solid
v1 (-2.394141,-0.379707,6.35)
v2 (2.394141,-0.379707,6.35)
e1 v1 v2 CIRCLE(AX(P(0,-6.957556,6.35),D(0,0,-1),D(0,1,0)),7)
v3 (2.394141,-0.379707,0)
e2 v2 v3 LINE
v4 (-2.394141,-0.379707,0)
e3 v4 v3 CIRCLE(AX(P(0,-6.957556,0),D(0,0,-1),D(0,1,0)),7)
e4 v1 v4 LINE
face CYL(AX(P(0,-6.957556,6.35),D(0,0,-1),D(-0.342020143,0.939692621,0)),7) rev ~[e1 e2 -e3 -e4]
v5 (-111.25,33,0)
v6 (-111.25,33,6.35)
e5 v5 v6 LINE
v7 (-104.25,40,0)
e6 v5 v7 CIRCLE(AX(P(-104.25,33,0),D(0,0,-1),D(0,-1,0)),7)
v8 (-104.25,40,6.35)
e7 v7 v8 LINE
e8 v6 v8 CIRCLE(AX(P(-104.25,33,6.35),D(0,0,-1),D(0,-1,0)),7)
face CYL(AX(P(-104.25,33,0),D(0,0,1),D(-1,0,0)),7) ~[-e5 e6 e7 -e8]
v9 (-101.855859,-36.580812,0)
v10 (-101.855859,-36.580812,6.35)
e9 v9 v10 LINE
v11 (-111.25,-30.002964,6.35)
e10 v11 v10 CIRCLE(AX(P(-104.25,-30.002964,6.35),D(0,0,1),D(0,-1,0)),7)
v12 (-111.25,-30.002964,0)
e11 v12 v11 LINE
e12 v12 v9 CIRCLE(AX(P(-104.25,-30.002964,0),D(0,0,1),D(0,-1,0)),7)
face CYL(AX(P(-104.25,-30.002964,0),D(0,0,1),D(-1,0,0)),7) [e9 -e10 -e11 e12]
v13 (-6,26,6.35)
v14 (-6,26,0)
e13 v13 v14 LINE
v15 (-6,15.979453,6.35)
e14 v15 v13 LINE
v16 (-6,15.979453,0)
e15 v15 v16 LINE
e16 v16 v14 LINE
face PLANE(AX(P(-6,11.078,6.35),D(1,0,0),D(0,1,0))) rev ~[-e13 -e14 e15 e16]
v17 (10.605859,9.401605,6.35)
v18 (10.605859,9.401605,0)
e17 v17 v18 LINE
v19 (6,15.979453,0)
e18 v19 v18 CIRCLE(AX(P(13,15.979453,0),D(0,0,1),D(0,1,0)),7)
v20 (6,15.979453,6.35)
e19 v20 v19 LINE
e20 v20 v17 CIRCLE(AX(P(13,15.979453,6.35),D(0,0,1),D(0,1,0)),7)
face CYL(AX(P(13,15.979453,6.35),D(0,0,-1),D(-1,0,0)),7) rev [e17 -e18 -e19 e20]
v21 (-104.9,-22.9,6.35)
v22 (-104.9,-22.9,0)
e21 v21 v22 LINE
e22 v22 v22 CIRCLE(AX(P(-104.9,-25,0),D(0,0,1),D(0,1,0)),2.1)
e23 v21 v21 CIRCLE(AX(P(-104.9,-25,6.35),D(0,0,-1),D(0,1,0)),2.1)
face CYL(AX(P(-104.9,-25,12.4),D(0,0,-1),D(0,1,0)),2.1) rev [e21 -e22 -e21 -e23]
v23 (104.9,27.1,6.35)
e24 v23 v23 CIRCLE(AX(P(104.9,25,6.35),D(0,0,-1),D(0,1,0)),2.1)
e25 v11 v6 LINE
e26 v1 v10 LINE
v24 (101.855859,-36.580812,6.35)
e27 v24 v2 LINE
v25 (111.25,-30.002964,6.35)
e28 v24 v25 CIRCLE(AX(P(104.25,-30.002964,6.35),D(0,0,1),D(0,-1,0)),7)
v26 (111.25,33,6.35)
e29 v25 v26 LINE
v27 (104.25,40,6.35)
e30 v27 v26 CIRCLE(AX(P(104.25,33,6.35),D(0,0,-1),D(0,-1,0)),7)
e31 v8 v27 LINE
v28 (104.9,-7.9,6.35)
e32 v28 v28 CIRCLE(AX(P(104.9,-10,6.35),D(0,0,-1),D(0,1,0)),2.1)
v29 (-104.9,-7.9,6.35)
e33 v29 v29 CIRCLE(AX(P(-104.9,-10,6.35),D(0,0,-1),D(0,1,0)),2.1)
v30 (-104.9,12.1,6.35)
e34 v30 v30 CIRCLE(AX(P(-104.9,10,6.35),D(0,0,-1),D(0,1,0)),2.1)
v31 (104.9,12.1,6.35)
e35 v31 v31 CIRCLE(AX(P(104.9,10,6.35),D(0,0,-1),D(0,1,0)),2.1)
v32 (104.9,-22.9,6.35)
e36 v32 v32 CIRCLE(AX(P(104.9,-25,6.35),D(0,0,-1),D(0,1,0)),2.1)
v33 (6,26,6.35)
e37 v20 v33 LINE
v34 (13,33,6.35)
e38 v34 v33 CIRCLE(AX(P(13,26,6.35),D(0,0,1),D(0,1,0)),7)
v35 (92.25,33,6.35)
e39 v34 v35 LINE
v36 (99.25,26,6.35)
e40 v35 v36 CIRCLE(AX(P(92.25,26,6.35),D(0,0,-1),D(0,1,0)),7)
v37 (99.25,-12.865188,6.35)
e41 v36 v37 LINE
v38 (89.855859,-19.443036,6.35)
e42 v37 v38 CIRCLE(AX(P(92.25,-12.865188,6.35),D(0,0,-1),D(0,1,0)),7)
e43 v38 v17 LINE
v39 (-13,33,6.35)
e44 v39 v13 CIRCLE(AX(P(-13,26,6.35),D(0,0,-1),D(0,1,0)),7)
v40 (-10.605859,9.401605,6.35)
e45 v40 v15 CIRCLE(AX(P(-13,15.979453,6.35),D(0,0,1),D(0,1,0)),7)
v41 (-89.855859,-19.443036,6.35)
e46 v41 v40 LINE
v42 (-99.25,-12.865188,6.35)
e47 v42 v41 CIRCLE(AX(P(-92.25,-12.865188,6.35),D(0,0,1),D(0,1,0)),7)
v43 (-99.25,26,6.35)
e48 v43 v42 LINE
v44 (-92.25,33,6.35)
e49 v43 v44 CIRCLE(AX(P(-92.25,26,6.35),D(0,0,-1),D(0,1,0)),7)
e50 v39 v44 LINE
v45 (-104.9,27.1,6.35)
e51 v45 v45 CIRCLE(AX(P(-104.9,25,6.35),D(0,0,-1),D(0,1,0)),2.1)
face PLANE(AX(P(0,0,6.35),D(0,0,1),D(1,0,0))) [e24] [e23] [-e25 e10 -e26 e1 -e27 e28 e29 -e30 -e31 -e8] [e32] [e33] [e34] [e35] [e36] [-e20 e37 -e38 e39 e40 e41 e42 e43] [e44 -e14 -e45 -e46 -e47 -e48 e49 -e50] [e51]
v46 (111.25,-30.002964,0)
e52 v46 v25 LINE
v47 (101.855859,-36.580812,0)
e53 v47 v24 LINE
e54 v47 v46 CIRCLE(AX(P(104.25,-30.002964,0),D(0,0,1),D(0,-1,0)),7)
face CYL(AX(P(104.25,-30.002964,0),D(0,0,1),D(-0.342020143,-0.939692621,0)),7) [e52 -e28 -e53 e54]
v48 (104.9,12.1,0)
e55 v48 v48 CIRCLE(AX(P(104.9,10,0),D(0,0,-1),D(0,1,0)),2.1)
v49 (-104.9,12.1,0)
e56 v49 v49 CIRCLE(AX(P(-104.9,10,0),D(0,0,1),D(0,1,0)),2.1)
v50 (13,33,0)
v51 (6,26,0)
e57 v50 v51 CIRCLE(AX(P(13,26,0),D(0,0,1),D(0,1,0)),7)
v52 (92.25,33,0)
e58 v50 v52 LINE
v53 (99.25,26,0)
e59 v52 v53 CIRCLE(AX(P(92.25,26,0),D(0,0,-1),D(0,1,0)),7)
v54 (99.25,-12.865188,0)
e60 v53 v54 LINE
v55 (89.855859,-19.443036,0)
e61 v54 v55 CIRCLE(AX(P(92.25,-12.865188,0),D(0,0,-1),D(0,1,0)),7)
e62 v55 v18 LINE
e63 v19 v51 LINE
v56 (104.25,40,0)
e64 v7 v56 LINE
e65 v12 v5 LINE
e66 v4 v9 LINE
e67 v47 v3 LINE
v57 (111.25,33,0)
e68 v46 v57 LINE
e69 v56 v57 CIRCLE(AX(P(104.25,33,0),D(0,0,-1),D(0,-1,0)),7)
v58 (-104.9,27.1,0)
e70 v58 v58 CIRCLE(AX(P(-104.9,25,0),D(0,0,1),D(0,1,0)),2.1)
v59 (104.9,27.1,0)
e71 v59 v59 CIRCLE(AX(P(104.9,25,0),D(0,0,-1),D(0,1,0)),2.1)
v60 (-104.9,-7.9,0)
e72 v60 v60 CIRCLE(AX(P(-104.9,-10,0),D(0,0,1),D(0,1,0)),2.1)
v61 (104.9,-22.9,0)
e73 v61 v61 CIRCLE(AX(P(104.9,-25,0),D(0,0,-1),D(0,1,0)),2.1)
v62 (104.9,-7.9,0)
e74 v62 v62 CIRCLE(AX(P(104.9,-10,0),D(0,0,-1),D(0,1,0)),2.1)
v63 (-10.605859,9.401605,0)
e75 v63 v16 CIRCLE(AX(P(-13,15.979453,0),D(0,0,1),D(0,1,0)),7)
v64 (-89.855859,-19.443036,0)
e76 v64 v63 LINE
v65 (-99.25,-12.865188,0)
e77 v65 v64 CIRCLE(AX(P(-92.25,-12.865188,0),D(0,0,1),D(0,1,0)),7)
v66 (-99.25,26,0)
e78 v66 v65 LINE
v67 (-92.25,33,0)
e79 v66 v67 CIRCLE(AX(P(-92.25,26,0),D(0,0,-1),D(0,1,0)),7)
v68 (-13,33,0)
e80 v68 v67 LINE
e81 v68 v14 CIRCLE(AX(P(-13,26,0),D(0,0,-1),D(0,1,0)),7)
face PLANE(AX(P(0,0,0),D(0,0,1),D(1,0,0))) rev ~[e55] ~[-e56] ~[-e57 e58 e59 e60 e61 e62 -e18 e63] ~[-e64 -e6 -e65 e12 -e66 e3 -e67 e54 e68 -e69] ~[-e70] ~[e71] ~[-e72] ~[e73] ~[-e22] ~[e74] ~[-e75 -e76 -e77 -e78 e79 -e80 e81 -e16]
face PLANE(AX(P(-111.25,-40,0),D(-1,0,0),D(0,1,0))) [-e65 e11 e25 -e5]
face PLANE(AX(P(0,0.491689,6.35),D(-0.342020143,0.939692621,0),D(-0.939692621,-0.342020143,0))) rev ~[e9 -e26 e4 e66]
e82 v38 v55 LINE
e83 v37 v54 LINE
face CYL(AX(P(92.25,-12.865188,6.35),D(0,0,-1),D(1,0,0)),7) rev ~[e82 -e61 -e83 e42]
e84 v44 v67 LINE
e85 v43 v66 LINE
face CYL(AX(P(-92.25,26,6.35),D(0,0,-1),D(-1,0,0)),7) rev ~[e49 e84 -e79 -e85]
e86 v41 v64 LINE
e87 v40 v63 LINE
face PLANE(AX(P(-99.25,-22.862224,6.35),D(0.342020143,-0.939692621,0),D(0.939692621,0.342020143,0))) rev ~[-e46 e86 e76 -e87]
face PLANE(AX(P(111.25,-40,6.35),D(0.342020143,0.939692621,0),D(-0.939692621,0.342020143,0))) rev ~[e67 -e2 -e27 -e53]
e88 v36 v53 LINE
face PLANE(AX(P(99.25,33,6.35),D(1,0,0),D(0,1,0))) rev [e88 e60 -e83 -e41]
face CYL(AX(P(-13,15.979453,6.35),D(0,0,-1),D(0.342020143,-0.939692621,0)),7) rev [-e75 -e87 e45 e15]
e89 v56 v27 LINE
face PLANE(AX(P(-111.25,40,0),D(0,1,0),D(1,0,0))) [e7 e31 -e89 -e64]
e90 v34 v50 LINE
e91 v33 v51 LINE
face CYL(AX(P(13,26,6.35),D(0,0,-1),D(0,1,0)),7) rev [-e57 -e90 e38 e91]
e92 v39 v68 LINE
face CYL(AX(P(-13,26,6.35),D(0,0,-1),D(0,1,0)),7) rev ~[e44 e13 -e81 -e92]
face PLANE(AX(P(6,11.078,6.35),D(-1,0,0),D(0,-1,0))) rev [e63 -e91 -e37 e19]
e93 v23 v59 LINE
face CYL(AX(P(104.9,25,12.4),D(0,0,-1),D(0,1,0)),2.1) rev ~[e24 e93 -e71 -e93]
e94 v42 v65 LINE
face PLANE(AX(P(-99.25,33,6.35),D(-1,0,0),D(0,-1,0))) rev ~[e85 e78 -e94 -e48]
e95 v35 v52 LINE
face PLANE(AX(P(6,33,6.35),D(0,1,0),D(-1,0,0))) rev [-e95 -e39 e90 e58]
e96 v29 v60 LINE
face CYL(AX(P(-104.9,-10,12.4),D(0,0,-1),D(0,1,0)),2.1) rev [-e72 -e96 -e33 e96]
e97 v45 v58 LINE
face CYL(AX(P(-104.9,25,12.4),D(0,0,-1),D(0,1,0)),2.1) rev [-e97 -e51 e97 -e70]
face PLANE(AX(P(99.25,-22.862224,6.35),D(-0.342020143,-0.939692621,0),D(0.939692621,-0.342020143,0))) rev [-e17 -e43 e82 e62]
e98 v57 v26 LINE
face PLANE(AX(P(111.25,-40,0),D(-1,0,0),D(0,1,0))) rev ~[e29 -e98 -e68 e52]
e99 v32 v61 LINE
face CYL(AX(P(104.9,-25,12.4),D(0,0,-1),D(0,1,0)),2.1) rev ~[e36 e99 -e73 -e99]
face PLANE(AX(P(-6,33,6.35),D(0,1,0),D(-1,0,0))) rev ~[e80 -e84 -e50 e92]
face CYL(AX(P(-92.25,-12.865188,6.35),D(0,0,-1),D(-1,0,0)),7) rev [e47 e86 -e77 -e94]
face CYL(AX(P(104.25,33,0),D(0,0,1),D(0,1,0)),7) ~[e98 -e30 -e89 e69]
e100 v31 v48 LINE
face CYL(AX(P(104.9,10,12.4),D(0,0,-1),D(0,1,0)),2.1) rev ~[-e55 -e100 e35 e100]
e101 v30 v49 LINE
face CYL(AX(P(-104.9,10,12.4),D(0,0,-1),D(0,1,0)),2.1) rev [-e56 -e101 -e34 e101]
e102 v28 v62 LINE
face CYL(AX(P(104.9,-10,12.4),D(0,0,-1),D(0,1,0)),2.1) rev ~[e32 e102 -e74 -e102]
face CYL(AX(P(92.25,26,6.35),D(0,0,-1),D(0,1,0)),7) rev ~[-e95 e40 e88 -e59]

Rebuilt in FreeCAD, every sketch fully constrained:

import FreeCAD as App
import Part
import Sketcher
Q = App.Units.Quantity


def edges_at(feature, points):
    """Names of the edges that pass closest to the given points."""
    edges = feature.Shape.Edges
    near = lambda p: min(range(len(edges)), key=lambda i: edges[i].distToShape(Part.Vertex(*p))[0])
    return sorted({f"Edge{near(p) + 1}" for p in points})


def add_polygon(sketch, points):
    """Adds a closed chain of lines whose ends are joined by coincident constraints."""
    first, n = sketch.GeometryCount, len(points)
    for a, b in zip(points, points[1:] + points[:1]):
        sketch.addGeometry(Part.LineSegment(App.Vector(*a, 0), App.Vector(*b, 0)), False)
    for i in range(n):
        sketch.addConstraint(Sketcher.Constraint("Coincident", first + i, 2, first + (i + 1) % n, 1))

doc = App.newDocument("Part")
params = doc.addObject("Spreadsheet::Sheet", "Params")
for row, (alias, value) in enumerate([
    ("sketch1_height", "80 mm"),
    ("sketch1_width", "222.5 mm"),
    ("pad1_length", "6.35 mm"),
    ("sketch2_width", "222.5 mm"),
    ("sketch3_width", "93.25 mm"),
    ("sketch4_width", "2.1 mm"),
    ("sketch4_height", "12.4 mm"),
    ("groove_angle", "360 deg"),
    ("linearpattern_pitch", "15 mm"),
    ("linearpattern2_pitch", "50 mm"),
    ("linearpattern3_pitch", "35 mm"),
    ("sketch5_width", "2.1 mm"),
    ("sketch5_height", "12.4 mm"),
    ("groove2_angle", "360 deg"),
    ("sketch6_width", "2.1 mm"),
    ("sketch6_height", "12.4 mm"),
    ("groove3_angle", "360 deg"),
    ("sketch7_width", "2.1 mm"),
    ("sketch7_height", "12.4 mm"),
    ("groove4_angle", "360 deg"),
    ("fillet_radius", "7 mm"),
], start=1):
    params.set(f"A{row}", alias)
    params.set(f"B{row}", "=" + value)
    params.setAlias(f"B{row}", alias)

body = doc.addObject("PartDesign::Body", "Body")

# Sketch on XY plane
sketch1 = body.newObject("Sketcher::SketchObject", "Sketch")
sketch1.AttachmentSupport = (doc.getObject("XY_Plane"), [""])
sketch1.MapMode = "FlatFace"
add_polygon(sketch1, [(-111, 40), (-111, -40), (111, -40), (111, 40)])  # lines 0-3
sketch1.addConstraint([
    Sketcher.Constraint("Vertical", 0),
    Sketcher.Constraint("Horizontal", 1),
    Sketcher.Constraint("Vertical", 2),
    Sketcher.Constraint("Horizontal", 3),
    Sketcher.Constraint("Symmetric", 0, 2, 2, 2, -1, 1),
    Sketcher.Constraint("DistanceY", 0, 2, 0, 1, Q("80 mm")),
    Sketcher.Constraint("DistanceX", 1, 1, 1, 2, Q("222.5 mm")),
])
sketch1.setExpression("Constraints[9]", "Params.sketch1_height")
sketch1.setExpression("Constraints[10]", "Params.sketch1_width")
pad1 = body.newObject("PartDesign::Pad", "Pad")
pad1.Profile = sketch1
pad1.setExpression("Length", "Params.pad1_length")

# Sketch on XY plane
sketch2 = body.newObject("Sketcher::SketchObject", "Sketch001")
sketch2.AttachmentSupport = (doc.getObject("XY_Plane"), [""])
sketch2.MapMode = "FlatFace"
sketch2.AttachmentOffset = App.Placement(App.Vector(0, 0, 6.35), App.Rotation())
add_polygon(sketch2, [(111, -40), (0, 0), (-111, -40)])  # lines 0-2
sketch2.addConstraint([
    Sketcher.Constraint("Horizontal", 2),
    Sketcher.Constraint("PointOnObject", 0, 2, -2),
    Sketcher.Constraint("Equal", 0, 1),
    Sketcher.Constraint("Angle", 0, Q("160 deg")),
    Sketcher.Constraint("DistanceX", 2, 1, 2, 2, Q("222.5 mm")),
    Sketcher.Constraint("DistanceY", 1, 2, -1, 1, Q("40 mm")),
])
sketch2.setExpression("Constraints[7]", "Params.sketch2_width")
pocket1 = body.newObject("PartDesign::Pocket", "Pocket")
pocket1.Profile = sketch2
pocket1.Type = "ThroughAll"

# Sketch on XY plane
sketch3 = body.newObject("Sketcher::SketchObject", "Sketch002")
sketch3.AttachmentSupport = (doc.getObject("XY_Plane"), [""])
sketch3.MapMode = "FlatFace"
sketch3.AttachmentOffset = App.Placement(App.Vector(0, 0, 6.35), App.Rotation())
add_polygon(sketch3, [(-99, 33), (-99, -23), (-6, 11), (-6, 33)])  # lines 0-3
sketch3.addConstraint([
    Sketcher.Constraint("Vertical", 0),
    Sketcher.Constraint("Vertical", 2),
    Sketcher.Constraint("Horizontal", 3),
    Sketcher.Constraint("Angle", 1, Q("20 deg")),
    Sketcher.Constraint("DistanceX", 1, 2, -1, 1, Q("6 mm")),
    Sketcher.Constraint("DistanceY", -1, 1, 2, 2, Q("33 mm")),
    Sketcher.Constraint("DistanceX", 3, 2, 3, 1, Q("93.25 mm")),
    Sketcher.Constraint("DistanceY", 2, 1, 2, 2, Q("21.922 mm")),
])
sketch3.setExpression("Constraints[10]", "Params.sketch3_width")
pocket2 = body.newObject("PartDesign::Pocket", "Pocket001")
pocket2.Profile = sketch3
pocket2.Type = "ThroughAll"

# Sketch on YZ plane
sketch4 = body.newObject("Sketcher::SketchObject", "Sketch003")
sketch4.AttachmentSupport = (doc.getObject("YZ_Plane"), [""])
sketch4.MapMode = "FlatFace"
sketch4.AttachmentOffset = App.Placement(App.Vector(0, 0, -104.9), App.Rotation())
add_polygon(sketch4, [(-25, 13.7), (-25, 0), (-22.9, 0), (-22.9, 12.4)])  # lines 0-3
sketch4.addGeometry(Part.LineSegment(App.Vector(-25, 0, 0), App.Vector(-25, 13.7, 0)), True)  # axis
sketch4.addConstraint([
    Sketcher.Constraint("Vertical", 0),
    Sketcher.Constraint("Horizontal", 1),
    Sketcher.Constraint("Vertical", 2),
    Sketcher.Constraint("Vertical", 4),
    Sketcher.Constraint("Coincident", 4, 1, 0, 2),
    Sketcher.Constraint("PointOnObject", 0, 2, -1),
    Sketcher.Constraint("Equal", 0, 4),
    Sketcher.Constraint("Angle", 3, Q("149 deg")),
    Sketcher.Constraint("DistanceX", 1, 1, 1, 2, Q("2.1 mm")),
    Sketcher.Constraint("DistanceY", 2, 1, 2, 2, Q("12.4 mm")),
    Sketcher.Constraint("DistanceX", 0, 2, -1, 1, Q("25 mm")),
])
sketch4.setExpression("Constraints[12]", "Params.sketch4_width")
sketch4.setExpression("Constraints[13]", "Params.sketch4_height")
groove = body.newObject("PartDesign::Groove", "Groove")
groove.Profile = sketch4
groove.ReferenceAxis = (sketch4, ["Axis0"])
groove.setExpression("Angle", "Params.groove_angle")
doc.recompute()

linearpattern = body.newObject("PartDesign::LinearPattern", "LinearPattern")
linearpattern.Originals = [groove]
linearpattern.Direction = (doc.getObject("Y_Axis"), [""])
linearpattern.Mode = "offset"
linearpattern.setExpression("Offset", "Params.linearpattern_pitch")
linearpattern.Occurrences = 2
body.Tip = linearpattern
doc.recompute()

linearpattern2 = body.newObject("PartDesign::LinearPattern", "LinearPattern001")
linearpattern2.Originals = [groove]
linearpattern2.Direction = (doc.getObject("Y_Axis"), [""])
linearpattern2.Mode = "offset"
linearpattern2.setExpression("Offset", "Params.linearpattern2_pitch")
linearpattern2.Occurrences = 2
body.Tip = linearpattern2
doc.recompute()

linearpattern3 = body.newObject("PartDesign::LinearPattern", "LinearPattern002")
linearpattern3.Originals = [groove]
linearpattern3.Direction = (doc.getObject("Y_Axis"), [""])
linearpattern3.Mode = "offset"
linearpattern3.setExpression("Offset", "Params.linearpattern3_pitch")
linearpattern3.Occurrences = 2
body.Tip = linearpattern3
doc.recompute()

mirrored = body.newObject("PartDesign::Mirrored", "Mirrored")
mirrored.Originals = [pocket2, groove]
mirrored.MirrorPlane = (doc.getObject("YZ_Plane"), [""])
body.Tip = mirrored

# Sketch on YZ plane
sketch5 = body.newObject("Sketcher::SketchObject", "Sketch004")
sketch5.AttachmentSupport = (doc.getObject("YZ_Plane"), [""])
sketch5.MapMode = "FlatFace"
sketch5.AttachmentOffset = App.Placement(App.Vector(0, 0, 104.9), App.Rotation())
add_polygon(sketch5, [(-10, 0), (-10, 13.7), (-7.9, 12.4), (-7.9, 0)])  # lines 0-3
sketch5.addGeometry(Part.LineSegment(App.Vector(-10, 13.7, 0), App.Vector(-10, 0, 0)), True)  # axis
sketch5.addConstraint([
    Sketcher.Constraint("Vertical", 0),
    Sketcher.Constraint("Vertical", 2),
    Sketcher.Constraint("Horizontal", 3),
    Sketcher.Constraint("Vertical", 4),
    Sketcher.Constraint("Coincident", 4, 1, 0, 2),
    Sketcher.Constraint("PointOnObject", 2, 2, -1),
    Sketcher.Constraint("PointOnObject", 4, 2, -1),
    Sketcher.Constraint("Angle", 1, Q("-31 deg")),
    Sketcher.Constraint("DistanceX", 3, 2, 3, 1, Q("2.1 mm")),
    Sketcher.Constraint("DistanceY", 2, 2, 2, 1, Q("12.4 mm")),
    Sketcher.Constraint("DistanceX", 0, 2, -1, 1, Q("10 mm")),
])
sketch5.setExpression("Constraints[12]", "Params.sketch5_width")
sketch5.setExpression("Constraints[13]", "Params.sketch5_height")
groove2 = body.newObject("PartDesign::Groove", "Groove001")
groove2.Profile = sketch5
groove2.ReferenceAxis = (sketch5, ["Axis0"])
groove2.setExpression("Angle", "Params.groove2_angle")

# Sketch on YZ plane
sketch6 = body.newObject("Sketcher::SketchObject", "Sketch005")
sketch6.AttachmentSupport = (doc.getObject("YZ_Plane"), [""])
sketch6.MapMode = "FlatFace"
sketch6.AttachmentOffset = App.Placement(App.Vector(0, 0, 104.9), App.Rotation())
add_polygon(sketch6, [(25, 0), (25, 13.7), (27.1, 12.4), (27.1, 0)])  # lines 0-3
sketch6.addGeometry(Part.LineSegment(App.Vector(25, 13.7, 0), App.Vector(25, 0, 0)), True)  # axis
sketch6.addConstraint([
    Sketcher.Constraint("Vertical", 0),
    Sketcher.Constraint("Vertical", 2),
    Sketcher.Constraint("Horizontal", 3),
    Sketcher.Constraint("Vertical", 4),
    Sketcher.Constraint("Coincident", 4, 1, 0, 2),
    Sketcher.Constraint("PointOnObject", 2, 2, -1),
    Sketcher.Constraint("PointOnObject", 4, 2, -1),
    Sketcher.Constraint("Angle", 1, Q("-31 deg")),
    Sketcher.Constraint("DistanceX", 3, 2, 3, 1, Q("2.1 mm")),
    Sketcher.Constraint("DistanceY", 2, 2, 2, 1, Q("12.4 mm")),
    Sketcher.Constraint("DistanceX", -1, 1, 0, 2, Q("25 mm")),
])
sketch6.setExpression("Constraints[12]", "Params.sketch6_width")
sketch6.setExpression("Constraints[13]", "Params.sketch6_height")
groove3 = body.newObject("PartDesign::Groove", "Groove002")
groove3.Profile = sketch6
groove3.ReferenceAxis = (sketch6, ["Axis0"])
groove3.setExpression("Angle", "Params.groove3_angle")

# Sketch on YZ plane
sketch7 = body.newObject("Sketcher::SketchObject", "Sketch006")
sketch7.AttachmentSupport = (doc.getObject("YZ_Plane"), [""])
sketch7.MapMode = "FlatFace"
sketch7.AttachmentOffset = App.Placement(App.Vector(0, 0, 104.9), App.Rotation())
add_polygon(sketch7, [(10, 0), (10, 13.7), (12.1, 12.4), (12.1, 0)])  # lines 0-3
sketch7.addGeometry(Part.LineSegment(App.Vector(10, 13.7, 0), App.Vector(10, 0, 0)), True)  # axis
sketch7.addConstraint([
    Sketcher.Constraint("Vertical", 0),
    Sketcher.Constraint("Vertical", 2),
    Sketcher.Constraint("Horizontal", 3),
    Sketcher.Constraint("Vertical", 4),
    Sketcher.Constraint("Coincident", 4, 1, 0, 2),
    Sketcher.Constraint("PointOnObject", 2, 2, -1),
    Sketcher.Constraint("PointOnObject", 4, 2, -1),
    Sketcher.Constraint("Angle", 1, Q("-31 deg")),
    Sketcher.Constraint("DistanceX", 3, 2, 3, 1, Q("2.1 mm")),
    Sketcher.Constraint("DistanceY", 2, 2, 2, 1, Q("12.4 mm")),
    Sketcher.Constraint("DistanceX", -1, 1, 0, 2, Q("10 mm")),
])
sketch7.setExpression("Constraints[12]", "Params.sketch7_width")
sketch7.setExpression("Constraints[13]", "Params.sketch7_height")
groove4 = body.newObject("PartDesign::Groove", "Groove003")
groove4.Profile = sketch7
groove4.ReferenceAxis = (sketch7, ["Axis0"])
groove4.setExpression("Angle", "Params.groove4_angle")
doc.recompute()

fillet = body.newObject("PartDesign::Fillet", "Fillet")
fillet.Base = (groove4, edges_at(groove4, [
    (0, 0.492, 3.175),
    (-99.25, 33, 3.175),
    (-6, 33, 3.175),
    (-6, 11.078, 3.175),
    (-99.25, -22.862, 3.175),
    (6, 33, 3.175),
    (99.25, 33, 3.175),
    (99.25, -22.862, 3.175),
    (6, 11.078, 3.175),
    (111.25, -40, 3.175),
    (-111.25, -40, 3.175),
    (-111.25, 40, 3.175),
    (111.25, 40, 3.175),
]))
fillet.setExpression("Radius", "Params.fillet_radius")

doc.recompute()
